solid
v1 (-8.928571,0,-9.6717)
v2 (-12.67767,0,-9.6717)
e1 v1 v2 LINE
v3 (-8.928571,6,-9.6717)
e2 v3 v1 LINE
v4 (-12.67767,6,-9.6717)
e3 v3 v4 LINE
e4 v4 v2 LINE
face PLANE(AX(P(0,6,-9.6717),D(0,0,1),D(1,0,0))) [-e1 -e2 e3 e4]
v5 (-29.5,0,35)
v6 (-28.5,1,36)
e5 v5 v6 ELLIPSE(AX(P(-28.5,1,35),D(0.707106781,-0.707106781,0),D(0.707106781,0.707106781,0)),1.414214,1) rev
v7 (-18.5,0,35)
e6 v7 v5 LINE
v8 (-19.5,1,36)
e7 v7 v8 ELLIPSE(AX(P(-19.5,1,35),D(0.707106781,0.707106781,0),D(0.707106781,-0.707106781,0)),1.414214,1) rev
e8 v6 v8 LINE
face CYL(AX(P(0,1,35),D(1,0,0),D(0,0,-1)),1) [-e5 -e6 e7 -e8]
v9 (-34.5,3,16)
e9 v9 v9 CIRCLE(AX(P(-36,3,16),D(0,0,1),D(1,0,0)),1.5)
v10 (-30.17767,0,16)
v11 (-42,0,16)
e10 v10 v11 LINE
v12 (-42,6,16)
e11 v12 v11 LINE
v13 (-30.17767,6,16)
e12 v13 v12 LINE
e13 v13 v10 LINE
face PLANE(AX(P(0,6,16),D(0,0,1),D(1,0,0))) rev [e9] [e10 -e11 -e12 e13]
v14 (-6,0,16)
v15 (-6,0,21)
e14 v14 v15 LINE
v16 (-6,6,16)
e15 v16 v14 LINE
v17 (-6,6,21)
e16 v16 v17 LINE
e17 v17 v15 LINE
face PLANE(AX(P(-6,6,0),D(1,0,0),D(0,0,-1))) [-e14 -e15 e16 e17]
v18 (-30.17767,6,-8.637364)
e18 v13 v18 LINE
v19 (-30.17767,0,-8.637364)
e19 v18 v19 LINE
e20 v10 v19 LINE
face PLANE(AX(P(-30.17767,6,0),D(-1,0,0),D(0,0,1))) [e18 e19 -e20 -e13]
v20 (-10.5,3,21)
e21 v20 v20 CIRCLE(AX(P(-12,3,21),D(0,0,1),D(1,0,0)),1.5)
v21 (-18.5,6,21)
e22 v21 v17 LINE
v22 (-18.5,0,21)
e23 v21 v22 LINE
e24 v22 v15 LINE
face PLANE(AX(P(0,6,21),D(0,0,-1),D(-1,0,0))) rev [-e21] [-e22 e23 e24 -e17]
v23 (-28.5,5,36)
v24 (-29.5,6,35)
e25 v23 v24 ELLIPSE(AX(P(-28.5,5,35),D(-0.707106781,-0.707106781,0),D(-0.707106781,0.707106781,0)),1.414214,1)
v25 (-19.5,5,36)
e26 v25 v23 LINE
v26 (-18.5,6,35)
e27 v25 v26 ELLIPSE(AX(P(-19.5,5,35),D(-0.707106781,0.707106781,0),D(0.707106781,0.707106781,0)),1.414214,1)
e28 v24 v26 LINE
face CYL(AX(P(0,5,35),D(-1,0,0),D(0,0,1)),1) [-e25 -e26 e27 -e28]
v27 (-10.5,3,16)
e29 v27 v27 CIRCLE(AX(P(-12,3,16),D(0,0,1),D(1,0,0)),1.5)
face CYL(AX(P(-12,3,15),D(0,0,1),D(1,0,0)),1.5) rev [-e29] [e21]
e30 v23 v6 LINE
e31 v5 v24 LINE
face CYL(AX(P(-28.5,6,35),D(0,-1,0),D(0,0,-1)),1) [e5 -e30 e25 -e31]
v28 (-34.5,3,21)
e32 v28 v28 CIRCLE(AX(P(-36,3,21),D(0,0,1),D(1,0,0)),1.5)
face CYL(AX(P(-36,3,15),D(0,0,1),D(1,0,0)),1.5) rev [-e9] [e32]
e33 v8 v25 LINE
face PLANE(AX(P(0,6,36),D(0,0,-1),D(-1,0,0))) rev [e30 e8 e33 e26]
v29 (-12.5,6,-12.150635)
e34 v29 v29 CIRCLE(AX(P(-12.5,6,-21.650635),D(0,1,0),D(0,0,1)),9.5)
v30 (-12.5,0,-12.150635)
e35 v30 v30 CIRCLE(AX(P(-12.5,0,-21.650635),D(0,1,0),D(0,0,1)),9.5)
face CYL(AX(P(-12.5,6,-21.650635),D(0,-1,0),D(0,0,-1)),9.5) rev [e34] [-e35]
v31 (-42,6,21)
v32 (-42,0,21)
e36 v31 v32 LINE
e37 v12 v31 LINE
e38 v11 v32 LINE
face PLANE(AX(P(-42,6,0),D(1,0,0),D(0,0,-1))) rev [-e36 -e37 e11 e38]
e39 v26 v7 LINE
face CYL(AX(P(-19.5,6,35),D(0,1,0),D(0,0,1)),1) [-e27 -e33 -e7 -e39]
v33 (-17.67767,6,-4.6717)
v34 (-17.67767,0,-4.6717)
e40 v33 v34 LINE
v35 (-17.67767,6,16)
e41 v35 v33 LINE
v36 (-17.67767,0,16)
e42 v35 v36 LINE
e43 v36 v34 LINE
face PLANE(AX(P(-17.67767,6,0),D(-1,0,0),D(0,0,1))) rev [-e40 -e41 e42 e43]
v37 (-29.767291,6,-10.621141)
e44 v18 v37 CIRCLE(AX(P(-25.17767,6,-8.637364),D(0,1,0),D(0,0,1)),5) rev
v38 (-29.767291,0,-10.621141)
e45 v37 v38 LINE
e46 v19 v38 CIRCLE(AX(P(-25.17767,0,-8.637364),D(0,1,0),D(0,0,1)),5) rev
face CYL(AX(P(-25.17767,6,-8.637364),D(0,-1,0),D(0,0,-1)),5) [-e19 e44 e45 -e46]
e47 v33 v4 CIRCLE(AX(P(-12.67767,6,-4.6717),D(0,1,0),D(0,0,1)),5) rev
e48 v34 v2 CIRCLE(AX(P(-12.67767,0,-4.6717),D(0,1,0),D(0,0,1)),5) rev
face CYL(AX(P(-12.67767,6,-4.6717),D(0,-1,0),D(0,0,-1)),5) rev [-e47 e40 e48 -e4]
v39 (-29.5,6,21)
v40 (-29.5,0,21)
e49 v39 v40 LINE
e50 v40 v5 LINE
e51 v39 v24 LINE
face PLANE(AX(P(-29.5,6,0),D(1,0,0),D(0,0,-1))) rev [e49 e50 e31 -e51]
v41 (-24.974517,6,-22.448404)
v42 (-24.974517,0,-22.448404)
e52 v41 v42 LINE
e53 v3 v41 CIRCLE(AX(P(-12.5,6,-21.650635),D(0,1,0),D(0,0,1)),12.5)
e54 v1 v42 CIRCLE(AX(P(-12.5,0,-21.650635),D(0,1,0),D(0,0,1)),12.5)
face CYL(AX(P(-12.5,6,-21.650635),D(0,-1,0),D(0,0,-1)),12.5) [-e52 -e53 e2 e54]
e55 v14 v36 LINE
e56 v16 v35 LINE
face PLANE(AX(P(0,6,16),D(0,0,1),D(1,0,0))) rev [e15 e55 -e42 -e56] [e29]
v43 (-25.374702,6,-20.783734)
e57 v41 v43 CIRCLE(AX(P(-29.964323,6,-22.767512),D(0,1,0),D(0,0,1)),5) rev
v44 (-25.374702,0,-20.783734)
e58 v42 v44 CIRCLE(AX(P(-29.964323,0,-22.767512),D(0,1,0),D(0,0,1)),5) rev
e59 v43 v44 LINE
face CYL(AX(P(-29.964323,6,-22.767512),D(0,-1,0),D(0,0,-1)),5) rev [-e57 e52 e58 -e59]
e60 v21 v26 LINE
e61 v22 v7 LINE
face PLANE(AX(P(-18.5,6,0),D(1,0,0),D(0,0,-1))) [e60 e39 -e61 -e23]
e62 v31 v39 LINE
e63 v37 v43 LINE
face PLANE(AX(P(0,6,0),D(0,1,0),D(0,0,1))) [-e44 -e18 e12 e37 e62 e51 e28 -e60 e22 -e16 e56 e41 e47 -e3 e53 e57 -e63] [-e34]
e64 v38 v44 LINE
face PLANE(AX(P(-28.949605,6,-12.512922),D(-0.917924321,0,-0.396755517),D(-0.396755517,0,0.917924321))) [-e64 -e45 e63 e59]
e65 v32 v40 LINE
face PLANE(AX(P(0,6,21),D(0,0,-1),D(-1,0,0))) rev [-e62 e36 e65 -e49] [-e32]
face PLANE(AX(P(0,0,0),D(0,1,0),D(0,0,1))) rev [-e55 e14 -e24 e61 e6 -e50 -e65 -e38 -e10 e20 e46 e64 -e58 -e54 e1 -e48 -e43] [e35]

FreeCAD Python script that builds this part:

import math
import FreeCAD as App
import Part
import Sketcher


def edges_at(feature, points):
    """Names of the edges that pass closest to the given points."""
    edges = feature.Shape.Edges
    near = lambda p: min(range(len(edges)), key=lambda i: edges[i].distToShape(Part.Vertex(*p))[0])
    return sorted({f"Edge{near(p) + 1}" for p in points})

doc = App.newDocument("Part")
body = doc.addObject("PartDesign::Body", "Body")

sketch1 = body.newObject("Sketcher::SketchObject", "Sketch")
sketch1.AttachmentSupport = (doc.getObject("XZ_Plane"), [""])
sketch1.MapMode = "FlatFace"
sketch1.addGeometry(Part.LineSegment(App.Vector(-25.4, -20.8, 0), App.Vector(-29.8, -10.6, 0)), False)
sketch1.addGeometry(Part.ArcOfCircle(Part.Circle(App.Vector(-25.2, -8.6, 0), App.Vector(0, 0, 1), 5), math.radians(-168.06), math.radians(-156.62)), False)
sketch1.addGeometry(Part.ArcOfCircle(Part.Circle(App.Vector(-25.2, -8.6, 0), App.Vector(0, 0, 1), 5), math.radians(-180), math.radians(-168.06)), False)
sketch1.addGeometry(Part.LineSegment(App.Vector(-30.2, -8.6, 0), App.Vector(-30.2, 16, 0)), False)
sketch1.addGeometry(Part.LineSegment(App.Vector(-30.2, 16, 0), App.Vector(-42, 16, 0)), False)
sketch1.addGeometry(Part.LineSegment(App.Vector(-42, 16, 0), App.Vector(-42, 21, 0)), False)
sketch1.addGeometry(Part.LineSegment(App.Vector(-42, 21, 0), App.Vector(-29.5, 21, 0)), False)
sketch1.addGeometry(Part.LineSegment(App.Vector(-29.5, 21, 0), App.Vector(-29.5, 36, 0)), False)
sketch1.addGeometry(Part.LineSegment(App.Vector(-29.5, 36, 0), App.Vector(-18.5, 36, 0)), False)
sketch1.addGeometry(Part.LineSegment(App.Vector(-18.5, 36, 0), App.Vector(-18.5, 21, 0)), False)
sketch1.addGeometry(Part.LineSegment(App.Vector(-18.5, 21, 0), App.Vector(-6, 21, 0)), False)
sketch1.addGeometry(Part.LineSegment(App.Vector(-6, 21, 0), App.Vector(-6, 16, 0)), False)
sketch1.addGeometry(Part.LineSegment(App.Vector(-6, 16, 0), App.Vector(-17.7, 16, 0)), False)
sketch1.addGeometry(Part.LineSegment(App.Vector(-17.7, 16, 0), App.Vector(-17.7, -4.7, 0)), False)
sketch1.addGeometry(Part.ArcOfCircle(Part.Circle(App.Vector(-12.7, -4.7, 0), App.Vector(0, 0, 1), 5), math.radians(180), math.radians(270)), False)
sketch1.addGeometry(Part.LineSegment(App.Vector(-12.7, -9.7, 0), App.Vector(-8.9, -9.7, 0)), False)
sketch1.addGeometry(Part.ArcOfCircle(Part.Circle(App.Vector(-12.5, -21.7, 0), App.Vector(0, 0, 1), 12.5), math.radians(-176), math.radians(73)), False)
sketch1.addGeometry(Part.ArcOfCircle(Part.Circle(App.Vector(-30, -22.8, 0), App.Vector(0, 0, 1), 5), math.radians(3.66), math.radians(23.38)), False)
sketch1.addGeometry(Part.Circle(App.Vector(-12.5, -21.7, 0), App.Vector(0, 0, 1), 9.5), False)
sketch1.addConstraint(Sketcher.Constraint("Tangent", 0, 2, 1, 2))
sketch1.addConstraint(Sketcher.Constraint("Tangent", 1, 1, 2, 2))
sketch1.addConstraint(Sketcher.Constraint("Tangent", 2, 1, 3, 1))
sketch1.addConstraint(Sketcher.Constraint("Coincident", 3, 2, 4, 1))
sketch1.addConstraint(Sketcher.Constraint("Coincident", 4, 2, 5, 1))
sketch1.addConstraint(Sketcher.Constraint("Coincident", 5, 2, 6, 1))
sketch1.addConstraint(Sketcher.Constraint("Coincident", 6, 2, 7, 1))
sketch1.addConstraint(Sketcher.Constraint("Coincident", 7, 2, 8, 1))
sketch1.addConstraint(Sketcher.Constraint("Coincident", 8, 2, 9, 1))
sketch1.addConstraint(Sketcher.Constraint("Coincident", 9, 2, 10, 1))
sketch1.addConstraint(Sketcher.Constraint("Coincident", 10, 2, 11, 1))
sketch1.addConstraint(Sketcher.Constraint("Coincident", 11, 2, 12, 1))
sketch1.addConstraint(Sketcher.Constraint("Coincident", 12, 2, 13, 1))
sketch1.addConstraint(Sketcher.Constraint("Tangent", 13, 2, 14, 1))
sketch1.addConstraint(Sketcher.Constraint("Tangent", 14, 2, 15, 1))
sketch1.addConstraint(Sketcher.Constraint("Coincident", 15, 2, 16, 2))
sketch1.addConstraint(Sketcher.Constraint("Tangent", 16, 1, 17, 1))
sketch1.addConstraint(Sketcher.Constraint("Tangent", 17, 2, 0, 1))
sketch1.addConstraint(Sketcher.Constraint("Vertical", 3))
sketch1.addConstraint(Sketcher.Constraint("Horizontal", 4))
sketch1.addConstraint(Sketcher.Constraint("Vertical", 5))
sketch1.addConstraint(Sketcher.Constraint("Horizontal", 6))
sketch1.addConstraint(Sketcher.Constraint("Vertical", 7))
sketch1.addConstraint(Sketcher.Constraint("Horizontal", 8))
sketch1.addConstraint(Sketcher.Constraint("Vertical", 9))
sketch1.addConstraint(Sketcher.Constraint("Horizontal", 10))
sketch1.addConstraint(Sketcher.Constraint("Vertical", 11))
sketch1.addConstraint(Sketcher.Constraint("Horizontal", 12))
sketch1.addConstraint(Sketcher.Constraint("Vertical", 13))
sketch1.addConstraint(Sketcher.Constraint("Horizontal", 15))
sketch1.addConstraint(Sketcher.Constraint("Coincident", 18, 3, 16, 3))
sketch1.addConstraint(Sketcher.Constraint("Equal", 1, 2))
sketch1.addConstraint(Sketcher.Constraint("Equal", 2, 14))
sketch1.addConstraint(Sketcher.Constraint("Equal", 14, 17))
sketch1.addConstraint(Sketcher.Constraint("Horizontal", 6, 2, 9, 2))
sketch1.addConstraint(Sketcher.Constraint("Horizontal", 4, 2, 11, 2))
sketch1.addConstraint(Sketcher.Constraint("Horizontal", 1, 1, 14, 2))
sketch1.addConstraint(Sketcher.Constraint("Equal", 6, 10))
sketch1.addConstraint(Sketcher.Constraint("Diameter", 18, 19.0))
sketch1.addConstraint(Sketcher.Constraint("Radius", 1, 5.0))
sketch1.addConstraint(Sketcher.Constraint("Radius", 16, 12.5))
sketch1.addConstraint(Sketcher.Constraint("DistanceX", 8, 1, 8, 2, 11.0))
sketch1.addConstraint(Sketcher.Constraint("DistanceY", 5, 1, 5, 2, 5.0))
sketch1.addConstraint(Sketcher.Constraint("DistanceY", 7, 1, 7, 2, 15.0))
sketch1.addConstraint(Sketcher.Constraint("DistanceX", 6, 1, 6, 2, 12.5))
sketch1.addConstraint(Sketcher.Constraint("DistanceY", -1, 1, 3, 2, 16.0))
sketch1.addConstraint(Sketcher.Constraint("DistanceX", 4, 2, -1, 1, 42.0))
sketch1.addConstraint(Sketcher.Constraint("DistanceX", 16, 3, -1, 1, 12.5))
sketch1.addConstraint(Sketcher.Constraint("DistanceX", 1, 3, 14, 3, 12.5))
sketch1.addConstraint(Sketcher.Constraint("DistanceX", 15, 1, 15, 2, 3.749098))
sketch1.addConstraint(Sketcher.Constraint("DistanceY", 13, 2, 13, 1, 20.6717))
sketch1.addConstraint(Sketcher.Constraint("DistanceX", 1, 1, 16, 1, 5.094998))
sketch1.addConstraint(Sketcher.Constraint("DistanceX", 4, 2, 4, 1, 11.82233))
sketch1.addConstraint(Sketcher.Constraint("DistanceX", 17, 2, -1, 1, 25.374702))
pad1 = body.newObject("PartDesign::Pad", "Pad")
pad1.Profile = sketch1
pad1.Length = 6
pad1.Reversed = True

sketch2 = body.newObject("Sketcher::SketchObject", "Sketch001")
sketch2.AttachmentSupport = (doc.getObject("XY_Plane"), [""])
sketch2.MapMode = "FlatFace"
sketch2.AttachmentOffset = App.Placement(App.Vector(0, 0, 21), App.Rotation())
sketch2.addGeometry(Part.Circle(App.Vector(-36, 3, 0), App.Vector(0, 0, 1), 1.5), False)
sketch2.addGeometry(Part.Circle(App.Vector(-12, 3, 0), App.Vector(0, 0, 1), 1.5), False)
sketch2.addConstraint(Sketcher.Constraint("Equal", 0, 1))
sketch2.addConstraint(Sketcher.Constraint("Horizontal", 0, 3, 1, 3))
sketch2.addConstraint(Sketcher.Constraint("Diameter", 0, 3.0))
sketch2.addConstraint(Sketcher.Constraint("DistanceX", 0, 3, -1, 1, 36.0))
sketch2.addConstraint(Sketcher.Constraint("DistanceY", -1, 1, 0, 3, 3.0))
sketch2.addConstraint(Sketcher.Constraint("DistanceX", 1, 3, -1, 1, 12.0))
pocket1 = body.newObject("PartDesign::Pocket", "Pocket")
pocket1.Profile = sketch2
pocket1.Length = 6
doc.recompute()

fillet = body.newObject("PartDesign::Fillet", "Fillet")
fillet.Base = (pocket1, edges_at(pocket1, [
    (-24, 0, 36),
    (-18.5, 3, 36),
    (-29.5, 3, 36),
    (-24, 6, 36),
]))
fillet.Radius = 1

doc.recompute()
